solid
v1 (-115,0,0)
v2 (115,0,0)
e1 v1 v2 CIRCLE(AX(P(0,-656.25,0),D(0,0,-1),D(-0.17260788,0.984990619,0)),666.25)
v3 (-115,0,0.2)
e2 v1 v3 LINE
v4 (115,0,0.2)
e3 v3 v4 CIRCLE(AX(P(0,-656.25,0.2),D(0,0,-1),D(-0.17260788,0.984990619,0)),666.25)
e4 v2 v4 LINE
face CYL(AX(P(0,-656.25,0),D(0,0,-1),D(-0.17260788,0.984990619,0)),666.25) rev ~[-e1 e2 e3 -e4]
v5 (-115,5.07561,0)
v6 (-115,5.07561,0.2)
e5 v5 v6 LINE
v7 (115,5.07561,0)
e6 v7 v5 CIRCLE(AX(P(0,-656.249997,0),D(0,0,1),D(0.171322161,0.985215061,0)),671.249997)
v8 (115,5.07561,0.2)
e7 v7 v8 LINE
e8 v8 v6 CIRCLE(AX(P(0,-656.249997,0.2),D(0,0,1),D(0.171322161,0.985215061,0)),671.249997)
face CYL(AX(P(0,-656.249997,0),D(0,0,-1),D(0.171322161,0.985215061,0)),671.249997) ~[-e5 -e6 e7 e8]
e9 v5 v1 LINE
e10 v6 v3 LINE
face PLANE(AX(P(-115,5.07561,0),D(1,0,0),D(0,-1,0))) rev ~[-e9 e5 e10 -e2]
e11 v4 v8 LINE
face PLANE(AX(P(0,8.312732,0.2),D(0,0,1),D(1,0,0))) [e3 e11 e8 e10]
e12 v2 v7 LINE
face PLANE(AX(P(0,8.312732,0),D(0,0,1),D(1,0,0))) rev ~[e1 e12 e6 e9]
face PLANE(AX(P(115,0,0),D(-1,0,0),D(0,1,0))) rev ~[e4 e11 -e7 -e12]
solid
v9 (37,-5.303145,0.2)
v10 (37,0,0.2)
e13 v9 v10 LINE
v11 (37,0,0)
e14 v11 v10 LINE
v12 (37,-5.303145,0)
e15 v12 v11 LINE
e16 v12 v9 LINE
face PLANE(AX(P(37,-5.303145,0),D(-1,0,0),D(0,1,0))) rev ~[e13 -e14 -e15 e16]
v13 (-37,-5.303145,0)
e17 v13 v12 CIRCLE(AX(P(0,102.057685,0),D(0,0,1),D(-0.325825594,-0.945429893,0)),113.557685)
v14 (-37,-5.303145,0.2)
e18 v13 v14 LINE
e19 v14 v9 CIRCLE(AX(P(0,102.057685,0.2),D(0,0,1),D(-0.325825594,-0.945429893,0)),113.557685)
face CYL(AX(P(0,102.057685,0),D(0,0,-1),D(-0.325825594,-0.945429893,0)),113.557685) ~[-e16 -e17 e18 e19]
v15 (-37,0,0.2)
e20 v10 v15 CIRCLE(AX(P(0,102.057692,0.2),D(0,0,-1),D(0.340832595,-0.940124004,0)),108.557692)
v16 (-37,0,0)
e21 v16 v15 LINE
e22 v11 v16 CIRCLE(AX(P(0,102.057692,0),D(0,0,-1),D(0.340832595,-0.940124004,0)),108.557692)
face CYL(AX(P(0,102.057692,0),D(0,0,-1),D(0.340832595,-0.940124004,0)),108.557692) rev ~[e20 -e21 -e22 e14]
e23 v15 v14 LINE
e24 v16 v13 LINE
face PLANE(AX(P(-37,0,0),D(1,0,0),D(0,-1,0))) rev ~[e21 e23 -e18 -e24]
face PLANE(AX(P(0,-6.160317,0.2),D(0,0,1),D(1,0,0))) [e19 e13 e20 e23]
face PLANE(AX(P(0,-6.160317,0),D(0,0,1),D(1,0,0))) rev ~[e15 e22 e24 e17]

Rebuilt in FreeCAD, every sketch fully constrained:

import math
import FreeCAD as App
import Part
import Sketcher

doc = App.newDocument("Part")
params = doc.addObject("Spreadsheet::Sheet", "Params")
for row, (alias, value) in enumerate([
    ("sketch1_radius", "666.25 mm"),
    ("pad1_length", "0.2 mm"),
    ("pad2_length", "0.2 mm"),
], start=1):
    params.set(f"A{row}", alias)
    params.set(f"B{row}", "=" + value)
    params.setAlias(f"B{row}", alias)

body = doc.addObject("PartDesign::Body", "Body")

# Sketch on XY plane
sketch1 = body.newObject("Sketcher::SketchObject", "Sketch")
sketch1.AttachmentSupport = (doc.getObject("XY_Plane"), [""])
sketch1.MapMode = "FlatFace"
sketch1.addGeometry([
    Part.ArcOfCircle(Part.Circle(App.Vector(0, -656.25, 0), App.Vector(0, 0, 1), 666.25), math.radians(80.060519), math.radians(99.939481)),
    Part.LineSegment(App.Vector(115, 0, 0), App.Vector(115, 5.07561, 0)),
    Part.ArcOfCircle(Part.Circle(App.Vector(0, -656.249997, 0), App.Vector(0, 0, 1), 671.249997), math.radians(80.135299), math.radians(99.864701)),
    Part.LineSegment(App.Vector(-115, 5.07561, 0), App.Vector(-115, 0, 0)),
], False)
sketch1.addConstraint([
    Sketcher.Constraint("Coincident", 0, 1, 1, 1),
    Sketcher.Constraint("Coincident", 1, 2, 2, 1),
    Sketcher.Constraint("Coincident", 2, 2, 3, 1),
    Sketcher.Constraint("Coincident", 3, 2, 0, 2),
    Sketcher.Constraint("Vertical", 1),
    Sketcher.Constraint("Vertical", 3),
    Sketcher.Constraint("Coincident", 2, 3, 0, 3),
    Sketcher.Constraint("PointOnObject", 0, 3, -2),
    Sketcher.Constraint("PointOnObject", 0, 1, -1),
    Sketcher.Constraint("PointOnObject", 3, 2, -1),
    Sketcher.Constraint("Radius", 0, 666.25),
    Sketcher.Constraint("DistanceX", -1, 1, 1, 2, 115.0),
    Sketcher.Constraint("Radius", 2, 671.249997),
])
sketch1.setExpression("Constraints[10]", "Params.sketch1_radius")
pad1 = body.newObject("PartDesign::Pad", "Pad")
pad1.Profile = sketch1
pad1.setExpression("Length", "Params.pad1_length")
body2 = doc.addObject("PartDesign::Body", "Body001")

# Sketch on XY plane
sketch2 = body2.newObject("Sketcher::SketchObject", "Sketch001")
sketch2.AttachmentSupport = (doc.getObject("XY_Plane001"), [""])
sketch2.MapMode = "FlatFace"
sketch2.addGeometry([
    Part.ArcOfCircle(Part.Circle(App.Vector(0, 102.057692, 0), App.Vector(0, 0, 1), 108.557692), math.radians(-109.927608), math.radians(-70.072392)),
    Part.LineSegment(App.Vector(-37, 0, 0), App.Vector(-37, -5.303145, 0)),
    Part.ArcOfCircle(Part.Circle(App.Vector(0, 102.057685, 0), App.Vector(0, 0, 1), 113.557685), math.radians(-109.015601), math.radians(-70.984399)),
    Part.LineSegment(App.Vector(37, -5.303145, 0), App.Vector(37, 0, 0)),
], False)
sketch2.addConstraint([
    Sketcher.Constraint("Coincident", 0, 1, 1, 1),
    Sketcher.Constraint("Coincident", 1, 2, 2, 1),
    Sketcher.Constraint("Coincident", 2, 2, 3, 1),
    Sketcher.Constraint("Coincident", 3, 2, 0, 2),
    Sketcher.Constraint("Vertical", 1),
    Sketcher.Constraint("Vertical", 3),
    Sketcher.Constraint("Coincident", 2, 3, 0, 3),
    Sketcher.Constraint("Symmetric", 0, 1, 3, 2, -1, 1),
    Sketcher.Constraint("PointOnObject", 0, 3, -2),
    Sketcher.Constraint("DistanceX", 0, 1, -1, 1, 37.0),
    Sketcher.Constraint("Radius", 0, 108.557692),
    Sketcher.Constraint("Radius", 2, 113.557685),
])
pad2 = body2.newObject("PartDesign::Pad", "Pad001")
pad2.Profile = sketch2
pad2.setExpression("Length", "Params.pad2_length")

doc.recompute()
